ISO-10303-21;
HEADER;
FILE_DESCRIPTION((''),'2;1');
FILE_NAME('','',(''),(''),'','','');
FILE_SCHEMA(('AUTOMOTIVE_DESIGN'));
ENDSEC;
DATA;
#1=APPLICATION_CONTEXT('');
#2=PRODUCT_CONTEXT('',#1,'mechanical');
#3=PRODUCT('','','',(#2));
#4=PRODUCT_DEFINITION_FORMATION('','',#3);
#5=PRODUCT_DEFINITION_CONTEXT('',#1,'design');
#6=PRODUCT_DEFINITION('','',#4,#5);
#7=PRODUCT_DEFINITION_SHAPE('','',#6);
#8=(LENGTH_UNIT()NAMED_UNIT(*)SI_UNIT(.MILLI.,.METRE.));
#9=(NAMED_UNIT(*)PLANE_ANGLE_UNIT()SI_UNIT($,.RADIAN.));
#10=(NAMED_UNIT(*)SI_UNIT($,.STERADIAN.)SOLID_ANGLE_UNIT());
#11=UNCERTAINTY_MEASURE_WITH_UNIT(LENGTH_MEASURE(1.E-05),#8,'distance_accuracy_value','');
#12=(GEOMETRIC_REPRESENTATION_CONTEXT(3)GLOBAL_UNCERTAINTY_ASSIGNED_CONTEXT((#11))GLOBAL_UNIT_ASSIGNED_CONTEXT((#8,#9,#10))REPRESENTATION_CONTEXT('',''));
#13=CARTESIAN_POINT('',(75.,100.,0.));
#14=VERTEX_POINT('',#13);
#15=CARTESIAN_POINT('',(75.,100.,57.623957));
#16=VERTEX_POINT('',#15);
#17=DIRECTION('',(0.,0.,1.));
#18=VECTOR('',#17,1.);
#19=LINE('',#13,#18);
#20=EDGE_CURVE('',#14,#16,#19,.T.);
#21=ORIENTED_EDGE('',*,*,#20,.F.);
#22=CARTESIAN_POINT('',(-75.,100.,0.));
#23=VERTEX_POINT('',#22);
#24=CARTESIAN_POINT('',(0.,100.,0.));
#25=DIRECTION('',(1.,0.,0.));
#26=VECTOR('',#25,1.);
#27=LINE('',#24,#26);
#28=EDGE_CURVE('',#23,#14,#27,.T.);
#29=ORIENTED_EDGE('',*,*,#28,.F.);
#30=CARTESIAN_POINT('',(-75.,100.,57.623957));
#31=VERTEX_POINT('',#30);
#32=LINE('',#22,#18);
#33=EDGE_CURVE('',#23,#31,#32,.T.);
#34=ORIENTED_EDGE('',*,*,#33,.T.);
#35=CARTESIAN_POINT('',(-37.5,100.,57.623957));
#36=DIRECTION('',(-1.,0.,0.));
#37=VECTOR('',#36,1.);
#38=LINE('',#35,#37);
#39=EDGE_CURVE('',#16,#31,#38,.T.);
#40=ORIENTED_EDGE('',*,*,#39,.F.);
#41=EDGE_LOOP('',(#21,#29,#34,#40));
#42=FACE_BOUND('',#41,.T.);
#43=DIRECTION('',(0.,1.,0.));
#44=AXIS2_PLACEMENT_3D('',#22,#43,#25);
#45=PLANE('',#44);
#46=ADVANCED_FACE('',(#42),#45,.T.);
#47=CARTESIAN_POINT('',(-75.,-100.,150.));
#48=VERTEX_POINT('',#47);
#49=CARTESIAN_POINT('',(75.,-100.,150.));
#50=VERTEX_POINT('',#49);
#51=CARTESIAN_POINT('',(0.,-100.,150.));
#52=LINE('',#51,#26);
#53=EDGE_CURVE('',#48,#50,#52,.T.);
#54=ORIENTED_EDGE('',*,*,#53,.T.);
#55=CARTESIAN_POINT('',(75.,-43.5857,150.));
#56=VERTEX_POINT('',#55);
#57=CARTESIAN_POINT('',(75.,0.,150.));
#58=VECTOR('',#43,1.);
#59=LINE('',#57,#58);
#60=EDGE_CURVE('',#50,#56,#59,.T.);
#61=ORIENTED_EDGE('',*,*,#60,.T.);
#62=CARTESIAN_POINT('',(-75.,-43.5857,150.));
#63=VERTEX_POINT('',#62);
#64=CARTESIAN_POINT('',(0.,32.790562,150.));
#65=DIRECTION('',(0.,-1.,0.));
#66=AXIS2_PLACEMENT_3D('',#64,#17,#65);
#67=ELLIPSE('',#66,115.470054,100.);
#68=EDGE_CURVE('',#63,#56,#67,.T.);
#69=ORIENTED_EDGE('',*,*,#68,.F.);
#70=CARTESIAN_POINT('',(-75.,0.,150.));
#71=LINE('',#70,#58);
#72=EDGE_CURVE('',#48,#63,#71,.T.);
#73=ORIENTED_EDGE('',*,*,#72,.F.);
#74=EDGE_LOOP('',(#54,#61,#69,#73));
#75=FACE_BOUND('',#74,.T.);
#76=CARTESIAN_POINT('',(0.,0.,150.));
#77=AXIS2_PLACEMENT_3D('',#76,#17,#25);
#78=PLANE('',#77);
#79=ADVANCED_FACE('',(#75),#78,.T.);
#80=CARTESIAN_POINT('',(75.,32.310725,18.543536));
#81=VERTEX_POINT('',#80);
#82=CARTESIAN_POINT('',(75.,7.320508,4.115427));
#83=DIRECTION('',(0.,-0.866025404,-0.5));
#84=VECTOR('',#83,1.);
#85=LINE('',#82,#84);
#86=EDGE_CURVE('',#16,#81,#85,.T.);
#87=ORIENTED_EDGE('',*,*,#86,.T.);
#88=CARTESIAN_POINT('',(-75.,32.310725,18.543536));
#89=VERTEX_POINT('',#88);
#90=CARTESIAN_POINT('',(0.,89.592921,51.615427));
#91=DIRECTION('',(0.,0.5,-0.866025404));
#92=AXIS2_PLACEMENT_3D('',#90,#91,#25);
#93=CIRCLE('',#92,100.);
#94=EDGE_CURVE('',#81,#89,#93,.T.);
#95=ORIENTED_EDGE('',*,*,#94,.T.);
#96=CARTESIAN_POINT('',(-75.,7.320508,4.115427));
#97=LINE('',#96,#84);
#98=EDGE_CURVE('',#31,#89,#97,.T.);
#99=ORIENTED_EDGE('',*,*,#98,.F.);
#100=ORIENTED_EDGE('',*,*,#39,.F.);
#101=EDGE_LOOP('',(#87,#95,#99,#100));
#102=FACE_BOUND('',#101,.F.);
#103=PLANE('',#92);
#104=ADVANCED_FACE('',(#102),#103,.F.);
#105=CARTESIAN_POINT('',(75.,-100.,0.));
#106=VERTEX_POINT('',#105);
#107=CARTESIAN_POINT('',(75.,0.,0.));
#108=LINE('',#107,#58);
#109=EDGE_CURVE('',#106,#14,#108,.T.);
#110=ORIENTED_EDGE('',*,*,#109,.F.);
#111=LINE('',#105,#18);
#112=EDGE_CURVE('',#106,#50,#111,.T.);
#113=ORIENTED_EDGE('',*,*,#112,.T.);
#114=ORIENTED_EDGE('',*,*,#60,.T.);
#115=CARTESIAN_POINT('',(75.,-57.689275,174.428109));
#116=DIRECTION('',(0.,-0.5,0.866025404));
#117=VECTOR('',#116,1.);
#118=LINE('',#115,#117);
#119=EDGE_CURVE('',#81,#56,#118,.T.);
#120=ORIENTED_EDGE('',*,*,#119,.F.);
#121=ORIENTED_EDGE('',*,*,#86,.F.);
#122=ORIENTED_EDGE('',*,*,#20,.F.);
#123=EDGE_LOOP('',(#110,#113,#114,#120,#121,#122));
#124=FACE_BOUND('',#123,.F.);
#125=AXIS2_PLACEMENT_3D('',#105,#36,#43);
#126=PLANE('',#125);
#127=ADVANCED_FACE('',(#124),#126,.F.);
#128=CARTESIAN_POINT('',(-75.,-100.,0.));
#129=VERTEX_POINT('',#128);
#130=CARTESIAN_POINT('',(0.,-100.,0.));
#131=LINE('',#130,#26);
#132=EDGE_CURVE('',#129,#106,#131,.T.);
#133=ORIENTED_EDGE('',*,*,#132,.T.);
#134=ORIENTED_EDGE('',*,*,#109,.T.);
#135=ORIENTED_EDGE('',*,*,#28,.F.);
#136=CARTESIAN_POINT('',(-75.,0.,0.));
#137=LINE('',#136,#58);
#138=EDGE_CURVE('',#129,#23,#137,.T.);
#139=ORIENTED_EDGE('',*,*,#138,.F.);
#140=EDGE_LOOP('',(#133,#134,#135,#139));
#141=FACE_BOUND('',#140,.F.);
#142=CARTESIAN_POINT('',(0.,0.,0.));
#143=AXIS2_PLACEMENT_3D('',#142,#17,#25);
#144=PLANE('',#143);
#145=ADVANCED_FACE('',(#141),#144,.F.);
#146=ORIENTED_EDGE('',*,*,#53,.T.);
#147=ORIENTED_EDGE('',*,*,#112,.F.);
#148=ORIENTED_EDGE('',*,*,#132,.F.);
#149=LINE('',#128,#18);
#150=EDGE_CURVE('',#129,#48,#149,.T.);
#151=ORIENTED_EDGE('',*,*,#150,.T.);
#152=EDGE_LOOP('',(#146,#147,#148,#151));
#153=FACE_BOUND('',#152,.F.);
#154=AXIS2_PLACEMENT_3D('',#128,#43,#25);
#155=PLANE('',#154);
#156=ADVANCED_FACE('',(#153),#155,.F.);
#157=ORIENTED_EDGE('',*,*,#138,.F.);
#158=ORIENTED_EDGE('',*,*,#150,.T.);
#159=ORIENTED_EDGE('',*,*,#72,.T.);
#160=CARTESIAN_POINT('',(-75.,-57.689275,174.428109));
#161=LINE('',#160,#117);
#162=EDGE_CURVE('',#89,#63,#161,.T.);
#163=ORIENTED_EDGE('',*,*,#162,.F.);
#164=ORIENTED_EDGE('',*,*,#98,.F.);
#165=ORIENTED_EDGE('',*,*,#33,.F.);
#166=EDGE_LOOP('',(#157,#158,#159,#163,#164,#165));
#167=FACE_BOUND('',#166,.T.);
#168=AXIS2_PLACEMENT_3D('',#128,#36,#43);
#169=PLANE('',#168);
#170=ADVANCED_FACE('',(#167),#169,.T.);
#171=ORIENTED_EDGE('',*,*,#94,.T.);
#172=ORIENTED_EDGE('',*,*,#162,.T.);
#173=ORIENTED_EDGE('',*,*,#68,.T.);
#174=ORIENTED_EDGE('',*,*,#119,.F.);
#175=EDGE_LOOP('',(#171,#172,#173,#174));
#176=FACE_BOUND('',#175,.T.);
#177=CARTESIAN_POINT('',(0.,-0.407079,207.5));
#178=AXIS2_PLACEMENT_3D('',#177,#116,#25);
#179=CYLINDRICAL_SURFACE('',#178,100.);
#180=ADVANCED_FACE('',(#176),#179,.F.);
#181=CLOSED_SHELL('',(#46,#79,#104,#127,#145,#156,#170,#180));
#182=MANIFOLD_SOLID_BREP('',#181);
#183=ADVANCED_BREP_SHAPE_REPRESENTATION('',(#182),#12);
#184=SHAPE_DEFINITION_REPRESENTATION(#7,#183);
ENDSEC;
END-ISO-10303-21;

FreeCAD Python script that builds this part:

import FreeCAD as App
import Part
import Sketcher

V = App.Vector
Q = App.Units.Quantity

doc = App.newDocument("Part")
body = doc.addObject("PartDesign::Body", "Body")

sketch1 = body.newObject("Sketcher::SketchObject", "Sketch")
sketch1.AttachmentSupport = (doc.getObject("XY_Plane"), [""])
sketch1.MapMode = "FlatFace"
sketch1.addGeometry([
    Part.LineSegment(V(-75, 100, 0), V(-75, -100, 0)),
    Part.LineSegment(V(-75, -100, 0), V(75, -100, 0)),
    Part.LineSegment(V(75, -100, 0), V(75, 100, 0)),
    Part.LineSegment(V(75, 100, 0), V(-75, 100, 0)),
], False)
sketch1.addConstraint([
    Sketcher.Constraint("Coincident", 0, 2, 1, 1),
    Sketcher.Constraint("Coincident", 1, 2, 2, 1),
    Sketcher.Constraint("Coincident", 2, 2, 3, 1),
    Sketcher.Constraint("Coincident", 3, 2, 0, 1),
    Sketcher.Constraint("Vertical", 0),
    Sketcher.Constraint("Horizontal", 1),
    Sketcher.Constraint("Vertical", 2),
    Sketcher.Constraint("Horizontal", 3),
    Sketcher.Constraint("Symmetric", 0, 2, 2, 2, -1, 1),
    Sketcher.Constraint("DistanceX", 1, 1, 1, 2, Q("150 mm")),
    Sketcher.Constraint("DistanceY", 0, 2, 0, 1, Q("200 mm")),
])
pad1 = body.newObject("PartDesign::Pad", "Pad")
pad1.Profile = sketch1
pad1.Length = 150

sketch2 = body.newObject("Sketcher::SketchObject", "Sketch001")
sketch2.Placement = App.Placement(V(0, -89.951905, 155.80127), App.Rotation(V(1, 0, 0), V(0, -0.866025404, -0.5), V(0, 0.5, -0.866025404), "ZXY"))
sketch2.addGeometry(Part.Circle(V(0, -103, 0), V(0, 0, 1), 100), False)
sketch2.addConstraint([
    Sketcher.Constraint("PointOnObject", 0, 3, -2),
    Sketcher.Constraint("Diameter", 0, Q("200 mm")),
    Sketcher.Constraint("DistanceY", 0, 3, -1, 1, Q("103.39746 mm")),
])
pocket1 = body.newObject("PartDesign::Pocket", "Pocket")
pocket1.Profile = sketch2
pocket1.Length = 180
pocket1.Reversed = True

doc.recompute()
